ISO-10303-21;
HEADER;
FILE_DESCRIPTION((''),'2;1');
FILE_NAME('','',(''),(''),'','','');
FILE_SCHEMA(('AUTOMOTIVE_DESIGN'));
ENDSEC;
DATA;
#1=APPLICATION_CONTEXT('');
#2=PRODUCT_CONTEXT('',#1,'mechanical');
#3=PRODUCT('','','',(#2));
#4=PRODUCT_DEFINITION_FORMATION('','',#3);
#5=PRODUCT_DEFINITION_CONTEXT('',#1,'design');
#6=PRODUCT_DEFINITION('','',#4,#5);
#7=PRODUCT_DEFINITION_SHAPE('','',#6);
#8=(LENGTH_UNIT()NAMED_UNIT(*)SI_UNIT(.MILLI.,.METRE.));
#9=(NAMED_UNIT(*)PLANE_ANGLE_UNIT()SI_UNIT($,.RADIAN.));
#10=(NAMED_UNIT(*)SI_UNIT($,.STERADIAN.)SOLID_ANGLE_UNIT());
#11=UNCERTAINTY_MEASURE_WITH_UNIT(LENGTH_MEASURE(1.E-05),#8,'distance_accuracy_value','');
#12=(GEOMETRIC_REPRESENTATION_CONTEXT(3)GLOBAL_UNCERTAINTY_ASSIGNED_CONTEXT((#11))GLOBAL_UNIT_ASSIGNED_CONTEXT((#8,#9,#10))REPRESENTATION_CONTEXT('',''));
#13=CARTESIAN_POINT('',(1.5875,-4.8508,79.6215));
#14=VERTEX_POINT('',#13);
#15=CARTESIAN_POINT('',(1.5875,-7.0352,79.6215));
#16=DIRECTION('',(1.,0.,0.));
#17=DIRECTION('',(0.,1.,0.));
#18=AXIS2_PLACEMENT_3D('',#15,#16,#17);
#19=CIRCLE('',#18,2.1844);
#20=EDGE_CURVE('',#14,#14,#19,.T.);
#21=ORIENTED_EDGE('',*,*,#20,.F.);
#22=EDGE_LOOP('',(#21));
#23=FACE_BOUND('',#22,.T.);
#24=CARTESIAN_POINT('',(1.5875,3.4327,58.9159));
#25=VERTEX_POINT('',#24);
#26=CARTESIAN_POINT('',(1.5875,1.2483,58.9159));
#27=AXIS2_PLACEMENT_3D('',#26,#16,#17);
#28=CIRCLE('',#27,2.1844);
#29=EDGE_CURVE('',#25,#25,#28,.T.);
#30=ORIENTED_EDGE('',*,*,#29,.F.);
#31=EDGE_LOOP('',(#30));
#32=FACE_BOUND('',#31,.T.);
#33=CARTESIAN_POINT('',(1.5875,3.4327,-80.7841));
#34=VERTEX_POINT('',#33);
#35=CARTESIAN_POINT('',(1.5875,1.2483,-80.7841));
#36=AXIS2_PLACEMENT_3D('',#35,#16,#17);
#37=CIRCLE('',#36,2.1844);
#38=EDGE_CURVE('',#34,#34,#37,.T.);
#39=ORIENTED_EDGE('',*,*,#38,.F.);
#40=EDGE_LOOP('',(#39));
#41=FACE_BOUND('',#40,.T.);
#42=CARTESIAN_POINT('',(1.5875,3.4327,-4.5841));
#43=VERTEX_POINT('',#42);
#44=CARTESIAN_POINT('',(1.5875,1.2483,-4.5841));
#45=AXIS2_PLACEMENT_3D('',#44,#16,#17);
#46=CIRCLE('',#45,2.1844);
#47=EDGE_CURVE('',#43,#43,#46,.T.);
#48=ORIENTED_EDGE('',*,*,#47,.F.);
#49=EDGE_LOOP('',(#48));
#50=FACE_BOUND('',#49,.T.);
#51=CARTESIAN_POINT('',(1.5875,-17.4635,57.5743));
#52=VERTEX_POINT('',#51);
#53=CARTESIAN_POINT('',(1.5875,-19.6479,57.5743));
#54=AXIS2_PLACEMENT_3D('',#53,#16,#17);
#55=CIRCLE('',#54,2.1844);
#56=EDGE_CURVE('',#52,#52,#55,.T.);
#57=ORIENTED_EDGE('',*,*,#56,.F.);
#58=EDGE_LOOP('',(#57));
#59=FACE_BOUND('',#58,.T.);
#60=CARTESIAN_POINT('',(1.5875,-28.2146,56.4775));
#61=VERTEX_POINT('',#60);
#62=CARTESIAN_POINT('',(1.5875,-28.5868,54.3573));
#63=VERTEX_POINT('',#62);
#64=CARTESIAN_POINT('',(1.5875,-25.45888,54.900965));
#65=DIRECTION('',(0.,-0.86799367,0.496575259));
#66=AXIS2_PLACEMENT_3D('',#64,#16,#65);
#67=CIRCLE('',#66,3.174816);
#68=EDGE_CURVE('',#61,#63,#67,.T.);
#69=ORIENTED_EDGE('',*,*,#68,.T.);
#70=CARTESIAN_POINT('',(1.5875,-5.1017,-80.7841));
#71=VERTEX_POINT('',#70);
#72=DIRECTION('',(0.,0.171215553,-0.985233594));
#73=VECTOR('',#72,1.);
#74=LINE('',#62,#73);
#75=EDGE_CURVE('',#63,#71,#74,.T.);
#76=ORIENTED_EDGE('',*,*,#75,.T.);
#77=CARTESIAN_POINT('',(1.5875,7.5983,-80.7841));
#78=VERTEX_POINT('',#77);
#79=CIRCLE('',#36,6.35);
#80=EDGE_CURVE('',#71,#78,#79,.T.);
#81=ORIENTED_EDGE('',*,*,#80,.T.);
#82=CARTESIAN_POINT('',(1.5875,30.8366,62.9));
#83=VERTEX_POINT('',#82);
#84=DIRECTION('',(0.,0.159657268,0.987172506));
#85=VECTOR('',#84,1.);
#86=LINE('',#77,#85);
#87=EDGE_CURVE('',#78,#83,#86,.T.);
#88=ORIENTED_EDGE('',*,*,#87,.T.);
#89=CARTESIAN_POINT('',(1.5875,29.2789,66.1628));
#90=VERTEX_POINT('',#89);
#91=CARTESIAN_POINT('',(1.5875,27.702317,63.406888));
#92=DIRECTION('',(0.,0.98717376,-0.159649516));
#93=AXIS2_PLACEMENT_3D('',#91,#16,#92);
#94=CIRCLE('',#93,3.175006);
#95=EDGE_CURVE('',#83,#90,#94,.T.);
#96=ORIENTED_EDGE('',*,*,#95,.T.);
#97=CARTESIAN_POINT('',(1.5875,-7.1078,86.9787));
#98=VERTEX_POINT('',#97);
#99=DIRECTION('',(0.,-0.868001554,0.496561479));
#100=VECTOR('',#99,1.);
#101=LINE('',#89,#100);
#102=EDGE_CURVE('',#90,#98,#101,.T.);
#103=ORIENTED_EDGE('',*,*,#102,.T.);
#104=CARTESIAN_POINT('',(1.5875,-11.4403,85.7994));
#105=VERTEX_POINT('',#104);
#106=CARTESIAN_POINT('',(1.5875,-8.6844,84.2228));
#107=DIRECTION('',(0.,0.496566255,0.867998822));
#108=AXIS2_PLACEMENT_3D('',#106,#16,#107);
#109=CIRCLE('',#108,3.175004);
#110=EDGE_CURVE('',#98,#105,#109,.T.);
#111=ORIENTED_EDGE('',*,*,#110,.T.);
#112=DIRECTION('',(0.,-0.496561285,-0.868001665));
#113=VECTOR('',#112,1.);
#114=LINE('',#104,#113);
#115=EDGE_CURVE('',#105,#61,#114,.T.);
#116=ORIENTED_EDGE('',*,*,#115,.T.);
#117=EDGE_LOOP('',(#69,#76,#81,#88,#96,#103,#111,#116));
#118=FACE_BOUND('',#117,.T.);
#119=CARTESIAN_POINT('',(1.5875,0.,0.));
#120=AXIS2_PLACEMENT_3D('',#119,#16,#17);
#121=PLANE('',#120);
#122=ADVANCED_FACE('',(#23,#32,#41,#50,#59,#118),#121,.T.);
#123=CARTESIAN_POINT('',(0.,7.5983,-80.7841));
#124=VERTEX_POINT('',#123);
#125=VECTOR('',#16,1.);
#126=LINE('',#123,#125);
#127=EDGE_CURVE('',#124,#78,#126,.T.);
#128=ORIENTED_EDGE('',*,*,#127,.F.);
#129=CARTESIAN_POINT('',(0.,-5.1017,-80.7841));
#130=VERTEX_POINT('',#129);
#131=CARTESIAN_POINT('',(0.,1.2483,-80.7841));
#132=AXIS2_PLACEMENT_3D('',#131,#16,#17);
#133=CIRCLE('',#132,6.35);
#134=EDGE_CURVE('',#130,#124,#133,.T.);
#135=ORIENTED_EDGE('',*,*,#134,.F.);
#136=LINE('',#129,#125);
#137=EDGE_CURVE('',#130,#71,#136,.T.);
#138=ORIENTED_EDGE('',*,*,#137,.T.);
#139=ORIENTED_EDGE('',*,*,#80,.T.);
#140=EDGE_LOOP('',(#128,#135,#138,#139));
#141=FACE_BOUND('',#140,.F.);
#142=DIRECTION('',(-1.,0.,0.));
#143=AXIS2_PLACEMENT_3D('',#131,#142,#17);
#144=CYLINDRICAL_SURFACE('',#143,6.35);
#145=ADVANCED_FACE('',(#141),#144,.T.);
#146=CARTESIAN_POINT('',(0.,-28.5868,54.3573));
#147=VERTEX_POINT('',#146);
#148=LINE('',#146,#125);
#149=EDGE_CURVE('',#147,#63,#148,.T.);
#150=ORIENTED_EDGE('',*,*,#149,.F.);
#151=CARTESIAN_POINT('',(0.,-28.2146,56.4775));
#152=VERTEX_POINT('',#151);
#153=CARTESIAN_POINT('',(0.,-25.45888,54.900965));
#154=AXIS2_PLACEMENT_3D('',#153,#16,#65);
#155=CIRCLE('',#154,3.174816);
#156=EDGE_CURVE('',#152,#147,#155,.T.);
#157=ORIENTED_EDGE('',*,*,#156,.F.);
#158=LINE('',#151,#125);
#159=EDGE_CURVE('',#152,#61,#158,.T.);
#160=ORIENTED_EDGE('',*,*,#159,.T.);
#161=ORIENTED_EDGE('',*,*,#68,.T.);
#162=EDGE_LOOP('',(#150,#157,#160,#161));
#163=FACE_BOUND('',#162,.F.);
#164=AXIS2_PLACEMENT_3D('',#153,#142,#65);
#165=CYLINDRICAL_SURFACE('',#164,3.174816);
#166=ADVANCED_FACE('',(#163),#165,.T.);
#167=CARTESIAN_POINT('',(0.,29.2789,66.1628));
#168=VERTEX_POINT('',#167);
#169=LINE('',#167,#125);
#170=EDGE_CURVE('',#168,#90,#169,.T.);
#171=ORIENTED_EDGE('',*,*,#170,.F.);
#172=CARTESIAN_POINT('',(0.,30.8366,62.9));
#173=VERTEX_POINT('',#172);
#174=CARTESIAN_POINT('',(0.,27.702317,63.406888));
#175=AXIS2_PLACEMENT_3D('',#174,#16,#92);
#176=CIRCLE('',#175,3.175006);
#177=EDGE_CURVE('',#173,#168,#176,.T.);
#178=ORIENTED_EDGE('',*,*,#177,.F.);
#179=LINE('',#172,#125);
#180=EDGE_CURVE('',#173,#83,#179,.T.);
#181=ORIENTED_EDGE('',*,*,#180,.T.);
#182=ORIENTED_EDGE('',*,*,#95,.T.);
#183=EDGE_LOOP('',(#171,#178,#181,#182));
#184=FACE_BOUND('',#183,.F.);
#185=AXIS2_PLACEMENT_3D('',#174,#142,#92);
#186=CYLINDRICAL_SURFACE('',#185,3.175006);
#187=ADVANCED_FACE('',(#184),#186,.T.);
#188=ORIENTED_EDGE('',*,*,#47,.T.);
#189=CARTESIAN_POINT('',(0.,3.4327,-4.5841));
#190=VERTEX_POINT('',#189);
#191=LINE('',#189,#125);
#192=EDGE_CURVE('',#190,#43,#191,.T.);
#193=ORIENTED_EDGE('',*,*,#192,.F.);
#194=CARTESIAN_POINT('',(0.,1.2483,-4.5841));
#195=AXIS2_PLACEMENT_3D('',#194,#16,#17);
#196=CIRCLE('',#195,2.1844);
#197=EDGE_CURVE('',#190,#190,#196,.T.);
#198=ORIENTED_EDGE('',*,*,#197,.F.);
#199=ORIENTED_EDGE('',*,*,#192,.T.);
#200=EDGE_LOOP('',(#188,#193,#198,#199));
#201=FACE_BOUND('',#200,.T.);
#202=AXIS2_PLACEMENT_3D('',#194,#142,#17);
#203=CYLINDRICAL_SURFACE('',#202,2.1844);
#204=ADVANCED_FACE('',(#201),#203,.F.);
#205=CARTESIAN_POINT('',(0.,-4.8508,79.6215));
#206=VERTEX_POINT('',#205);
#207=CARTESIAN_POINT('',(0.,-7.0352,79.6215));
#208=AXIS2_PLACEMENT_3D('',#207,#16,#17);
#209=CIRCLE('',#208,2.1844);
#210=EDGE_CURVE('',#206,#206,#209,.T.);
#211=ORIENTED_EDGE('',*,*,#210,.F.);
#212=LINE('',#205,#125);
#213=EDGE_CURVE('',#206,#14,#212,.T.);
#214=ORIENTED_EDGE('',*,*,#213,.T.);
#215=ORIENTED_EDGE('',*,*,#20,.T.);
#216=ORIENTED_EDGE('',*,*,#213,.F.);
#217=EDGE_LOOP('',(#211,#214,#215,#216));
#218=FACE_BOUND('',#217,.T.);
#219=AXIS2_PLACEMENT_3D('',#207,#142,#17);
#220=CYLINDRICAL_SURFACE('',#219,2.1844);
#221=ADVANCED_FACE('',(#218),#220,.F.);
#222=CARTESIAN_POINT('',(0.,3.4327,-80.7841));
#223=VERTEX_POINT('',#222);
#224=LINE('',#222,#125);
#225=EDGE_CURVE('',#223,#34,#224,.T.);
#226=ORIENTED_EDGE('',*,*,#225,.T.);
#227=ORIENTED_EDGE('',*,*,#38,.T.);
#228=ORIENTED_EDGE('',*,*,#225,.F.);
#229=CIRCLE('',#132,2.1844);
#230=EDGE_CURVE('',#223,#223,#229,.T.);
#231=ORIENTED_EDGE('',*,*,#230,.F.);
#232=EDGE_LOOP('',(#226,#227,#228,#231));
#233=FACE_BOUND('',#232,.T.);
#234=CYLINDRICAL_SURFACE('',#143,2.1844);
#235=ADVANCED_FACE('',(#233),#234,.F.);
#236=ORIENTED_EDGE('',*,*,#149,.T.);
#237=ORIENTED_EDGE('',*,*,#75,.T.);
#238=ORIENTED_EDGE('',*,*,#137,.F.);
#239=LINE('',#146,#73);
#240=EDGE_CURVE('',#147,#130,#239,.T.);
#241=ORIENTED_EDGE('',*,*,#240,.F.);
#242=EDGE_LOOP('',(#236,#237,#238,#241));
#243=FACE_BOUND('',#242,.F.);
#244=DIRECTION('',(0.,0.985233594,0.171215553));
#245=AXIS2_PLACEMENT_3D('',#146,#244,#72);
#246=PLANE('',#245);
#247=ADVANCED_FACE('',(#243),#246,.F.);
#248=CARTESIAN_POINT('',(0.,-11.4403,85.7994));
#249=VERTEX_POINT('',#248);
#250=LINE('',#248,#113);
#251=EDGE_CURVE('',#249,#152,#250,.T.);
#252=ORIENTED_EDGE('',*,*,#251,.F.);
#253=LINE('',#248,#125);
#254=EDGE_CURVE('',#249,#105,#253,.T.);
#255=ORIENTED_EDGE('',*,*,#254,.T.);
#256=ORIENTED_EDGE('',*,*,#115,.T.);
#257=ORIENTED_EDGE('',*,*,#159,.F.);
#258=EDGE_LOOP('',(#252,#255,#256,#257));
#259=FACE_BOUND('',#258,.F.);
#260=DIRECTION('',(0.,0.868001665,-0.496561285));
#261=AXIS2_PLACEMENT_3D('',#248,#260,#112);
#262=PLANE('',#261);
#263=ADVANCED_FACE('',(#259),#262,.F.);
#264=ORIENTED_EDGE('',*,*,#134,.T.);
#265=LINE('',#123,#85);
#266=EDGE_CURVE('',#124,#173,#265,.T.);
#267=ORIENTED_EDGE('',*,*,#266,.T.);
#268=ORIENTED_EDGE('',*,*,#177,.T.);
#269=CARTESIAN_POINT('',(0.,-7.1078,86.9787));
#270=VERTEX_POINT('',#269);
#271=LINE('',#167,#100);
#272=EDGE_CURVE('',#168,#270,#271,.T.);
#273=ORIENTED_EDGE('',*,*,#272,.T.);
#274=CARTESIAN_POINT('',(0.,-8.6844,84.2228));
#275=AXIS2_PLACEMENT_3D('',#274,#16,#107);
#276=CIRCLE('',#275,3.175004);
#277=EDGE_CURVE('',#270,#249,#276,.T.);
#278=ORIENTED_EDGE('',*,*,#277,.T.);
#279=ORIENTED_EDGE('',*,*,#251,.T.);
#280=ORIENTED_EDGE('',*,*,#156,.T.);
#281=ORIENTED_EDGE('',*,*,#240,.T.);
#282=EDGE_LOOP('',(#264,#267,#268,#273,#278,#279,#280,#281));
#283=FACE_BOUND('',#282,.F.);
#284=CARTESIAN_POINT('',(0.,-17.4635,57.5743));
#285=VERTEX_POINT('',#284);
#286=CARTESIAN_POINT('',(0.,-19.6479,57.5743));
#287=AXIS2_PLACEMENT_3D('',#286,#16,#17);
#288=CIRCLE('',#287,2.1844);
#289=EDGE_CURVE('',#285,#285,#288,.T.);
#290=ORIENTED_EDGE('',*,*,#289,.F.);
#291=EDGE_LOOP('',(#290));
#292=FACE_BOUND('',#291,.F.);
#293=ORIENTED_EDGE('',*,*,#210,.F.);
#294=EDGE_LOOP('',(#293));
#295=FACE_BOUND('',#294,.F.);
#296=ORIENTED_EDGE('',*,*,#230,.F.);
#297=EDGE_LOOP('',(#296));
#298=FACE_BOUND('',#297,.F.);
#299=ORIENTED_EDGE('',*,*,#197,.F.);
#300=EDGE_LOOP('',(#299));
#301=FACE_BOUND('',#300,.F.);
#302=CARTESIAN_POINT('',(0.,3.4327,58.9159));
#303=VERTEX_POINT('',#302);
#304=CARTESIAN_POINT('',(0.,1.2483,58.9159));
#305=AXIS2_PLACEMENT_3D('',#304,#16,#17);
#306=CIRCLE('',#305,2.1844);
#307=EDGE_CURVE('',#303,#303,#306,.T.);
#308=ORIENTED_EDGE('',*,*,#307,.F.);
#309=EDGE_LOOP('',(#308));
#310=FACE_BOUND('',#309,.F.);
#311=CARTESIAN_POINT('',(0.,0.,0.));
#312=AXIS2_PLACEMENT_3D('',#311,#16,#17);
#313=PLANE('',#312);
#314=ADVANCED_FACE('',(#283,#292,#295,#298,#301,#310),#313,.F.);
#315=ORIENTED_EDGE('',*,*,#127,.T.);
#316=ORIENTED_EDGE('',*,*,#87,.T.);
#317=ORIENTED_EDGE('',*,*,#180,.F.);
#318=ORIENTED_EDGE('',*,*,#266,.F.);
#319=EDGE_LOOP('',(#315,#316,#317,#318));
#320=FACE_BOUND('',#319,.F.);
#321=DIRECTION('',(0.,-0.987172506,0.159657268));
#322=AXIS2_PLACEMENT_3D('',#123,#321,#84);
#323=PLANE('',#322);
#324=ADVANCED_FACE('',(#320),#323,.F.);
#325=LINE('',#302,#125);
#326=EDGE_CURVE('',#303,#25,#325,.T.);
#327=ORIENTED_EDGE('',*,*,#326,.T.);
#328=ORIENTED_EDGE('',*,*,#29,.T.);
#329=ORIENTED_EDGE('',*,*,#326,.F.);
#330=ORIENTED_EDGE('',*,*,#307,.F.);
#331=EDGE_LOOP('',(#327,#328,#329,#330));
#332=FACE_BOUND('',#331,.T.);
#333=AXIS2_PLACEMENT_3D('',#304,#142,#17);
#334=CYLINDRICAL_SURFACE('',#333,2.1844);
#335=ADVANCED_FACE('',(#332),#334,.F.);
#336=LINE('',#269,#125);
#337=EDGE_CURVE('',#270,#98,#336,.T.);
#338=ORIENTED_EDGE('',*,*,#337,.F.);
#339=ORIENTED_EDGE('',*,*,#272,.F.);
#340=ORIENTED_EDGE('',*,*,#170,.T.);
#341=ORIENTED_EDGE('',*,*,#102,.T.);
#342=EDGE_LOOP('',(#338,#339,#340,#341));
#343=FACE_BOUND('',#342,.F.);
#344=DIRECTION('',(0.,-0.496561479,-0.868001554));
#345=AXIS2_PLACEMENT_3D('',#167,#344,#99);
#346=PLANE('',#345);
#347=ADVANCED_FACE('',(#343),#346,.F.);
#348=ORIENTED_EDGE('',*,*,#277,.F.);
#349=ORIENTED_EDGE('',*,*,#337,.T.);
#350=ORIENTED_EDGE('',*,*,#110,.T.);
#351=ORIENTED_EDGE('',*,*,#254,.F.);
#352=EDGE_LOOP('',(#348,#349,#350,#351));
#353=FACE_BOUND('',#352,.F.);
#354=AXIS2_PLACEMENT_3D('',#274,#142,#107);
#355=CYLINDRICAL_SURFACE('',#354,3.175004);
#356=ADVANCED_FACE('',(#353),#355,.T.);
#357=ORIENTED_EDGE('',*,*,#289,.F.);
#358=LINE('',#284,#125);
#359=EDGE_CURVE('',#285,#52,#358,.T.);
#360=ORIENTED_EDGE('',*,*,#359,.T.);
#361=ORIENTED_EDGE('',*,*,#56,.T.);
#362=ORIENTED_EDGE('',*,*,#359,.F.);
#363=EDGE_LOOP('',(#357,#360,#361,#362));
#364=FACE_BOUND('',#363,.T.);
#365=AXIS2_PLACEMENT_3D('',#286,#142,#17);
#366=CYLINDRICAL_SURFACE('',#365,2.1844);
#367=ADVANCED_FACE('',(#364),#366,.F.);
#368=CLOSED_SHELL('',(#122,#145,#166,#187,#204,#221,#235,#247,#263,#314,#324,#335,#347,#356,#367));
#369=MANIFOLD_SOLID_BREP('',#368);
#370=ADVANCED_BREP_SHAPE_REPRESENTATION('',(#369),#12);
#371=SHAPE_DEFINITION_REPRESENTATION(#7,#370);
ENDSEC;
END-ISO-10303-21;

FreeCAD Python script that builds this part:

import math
import FreeCAD as App
import Part
import Sketcher
from FreeCAD import Vector
Q = App.Units.Quantity

doc = App.newDocument("Part")
body = doc.addObject("PartDesign::Body", "Body")

# Sketch on YZ plane
sketch1 = doc.addObject("Sketcher::SketchObject", "Sketch")
body.addObject(sketch1)
sketch1.AttachmentSupport = (doc.YZ_Plane, [""])
sketch1.MapMode = "FlatFace"
sketch1.addGeometry([
    Part.ArcOfCircle(Part.Circle(Vector(1.2, -80.8, 0), Vector(0, 0, 1), 6.3), math.radians(180), math.radians(360)),  # 0
    Part.LineSegment(Vector(7.6, -80.8, 0), Vector(30.8, 62.9, 0)),  # 1
    Part.ArcOfCircle(Part.Circle(Vector(27.7, 63.4, 0), Vector(0, 0, 1), 3.2), math.radians(-9), math.radians(60)),  # 2
    Part.LineSegment(Vector(29.3, 66.2, 0), Vector(-7.1, 87, 0)),  # 3
    Part.ArcOfCircle(Part.Circle(Vector(-8.7, 84.2, 0), Vector(0, 0, 1), 3.2), math.radians(60), math.radians(150)),  # 4
    Part.LineSegment(Vector(-11.4, 85.8, 0), Vector(-28.2, 56.5, 0)),  # 5
    Part.ArcOfCircle(Part.Circle(Vector(-25.5, 54.9, 0), Vector(0, 0, 1), 3.2), math.radians(150), math.radians(190)),  # 6
    Part.LineSegment(Vector(-28.6, 54.4, 0), Vector(-5.1, -80.8, 0)),  # 7
    Part.Circle(Vector(1.2, -80.8, 0), Vector(0, 0, 1), 2.2),  # 8
    Part.Circle(Vector(1.2, 58.9, 0), Vector(0, 0, 1), 2.2),  # 9
    Part.Circle(Vector(1.2, -4.6, 0), Vector(0, 0, 1), 2.2),  # 10
    Part.Circle(Vector(-19.6, 57.6, 0), Vector(0, 0, 1), 2.2),  # 11
    Part.Circle(Vector(-7, 79.6, 0), Vector(0, 0, 1), 2.2),  # 12
], False)
sketch1.addConstraint([
    Sketcher.Constraint("Coincident", 0, 2, 1, 1),
    Sketcher.Constraint("Tangent", 1, 2, 2, 1),
    Sketcher.Constraint("Tangent", 2, 2, 3, 1),
    Sketcher.Constraint("Tangent", 3, 2, 4, 1),
    Sketcher.Constraint("Tangent", 4, 2, 5, 1),
    Sketcher.Constraint("Tangent", 5, 2, 6, 1),
    Sketcher.Constraint("Tangent", 6, 2, 7, 1),
    Sketcher.Constraint("Coincident", 7, 2, 0, 1),
    Sketcher.Constraint("Coincident", 8, 3, 0, 3),
    Sketcher.Constraint("Equal", 2, 4),
    Sketcher.Constraint("Equal", 4, 6),
    Sketcher.Constraint("Equal", 8, 9),
    Sketcher.Constraint("Equal", 9, 10),
    Sketcher.Constraint("Equal", 10, 11),
    Sketcher.Constraint("Equal", 11, 12),
    Sketcher.Constraint("Perpendicular", 3, 5),
    Sketcher.Constraint("Horizontal", 8, 3, 0, 2),
    Sketcher.Constraint("Horizontal", 0, 2, 7, 2),
    Sketcher.Constraint("Vertical", 8, 3, 9, 3),
    Sketcher.Constraint("Vertical", 9, 3, 10, 3),
    Sketcher.Constraint("Radius", 0, Q("0.25 in")),
    Sketcher.Constraint("Diameter", 8, Q("0.172 in")),
    Sketcher.Constraint("Radius", 2, Q("0.125 in")),
    Sketcher.Constraint("DistanceY", 0, 3, 10, 3, Q("3 in")),
    Sketcher.Constraint("DistanceY", 0, 3, 9, 3, Q("5.5 in")),
    Sketcher.Constraint("DistanceY", 11, 3, 12, 3, Q("0.868 in")),
    Sketcher.Constraint("DistanceY", 5, 2, 9, 3, Q("0.096 in")),
    Sketcher.Constraint("Distance", 3, Q("1.6504 in")),
    Sketcher.Constraint("DistanceX", 4, 3, -1, 1, Q("0.3419 in")),
    Sketcher.Constraint("DistanceX", 6, 3, -1, 1, Q("1.0023 in")),
    Sketcher.Constraint("DistanceY", -1, 1, 11, 3, Q("2.2667 in")),
    Sketcher.Constraint("DistanceX", 4, 2, -1, 1, Q("0.4504 in")),
    Sketcher.Constraint("DistanceX", 0, 3, 2, 3, Q("1.0415 in")),
    Sketcher.Constraint("DistanceX", 12, 3, 2, 2, Q("1.4297 in")),
    Sketcher.Constraint("DistanceX", 11, 3, 3, 2, Q("0.4937 in")),
    Sketcher.Constraint("DistanceY", 0, 3, -1, 1, Q("80.784 mm")),
])
pad1 = doc.addObject("PartDesign::Pad", "Pad")
body.addObject(pad1)
pad1.Profile = sketch1
pad1.Length = Q("0.0625 in")

doc.recompute()
